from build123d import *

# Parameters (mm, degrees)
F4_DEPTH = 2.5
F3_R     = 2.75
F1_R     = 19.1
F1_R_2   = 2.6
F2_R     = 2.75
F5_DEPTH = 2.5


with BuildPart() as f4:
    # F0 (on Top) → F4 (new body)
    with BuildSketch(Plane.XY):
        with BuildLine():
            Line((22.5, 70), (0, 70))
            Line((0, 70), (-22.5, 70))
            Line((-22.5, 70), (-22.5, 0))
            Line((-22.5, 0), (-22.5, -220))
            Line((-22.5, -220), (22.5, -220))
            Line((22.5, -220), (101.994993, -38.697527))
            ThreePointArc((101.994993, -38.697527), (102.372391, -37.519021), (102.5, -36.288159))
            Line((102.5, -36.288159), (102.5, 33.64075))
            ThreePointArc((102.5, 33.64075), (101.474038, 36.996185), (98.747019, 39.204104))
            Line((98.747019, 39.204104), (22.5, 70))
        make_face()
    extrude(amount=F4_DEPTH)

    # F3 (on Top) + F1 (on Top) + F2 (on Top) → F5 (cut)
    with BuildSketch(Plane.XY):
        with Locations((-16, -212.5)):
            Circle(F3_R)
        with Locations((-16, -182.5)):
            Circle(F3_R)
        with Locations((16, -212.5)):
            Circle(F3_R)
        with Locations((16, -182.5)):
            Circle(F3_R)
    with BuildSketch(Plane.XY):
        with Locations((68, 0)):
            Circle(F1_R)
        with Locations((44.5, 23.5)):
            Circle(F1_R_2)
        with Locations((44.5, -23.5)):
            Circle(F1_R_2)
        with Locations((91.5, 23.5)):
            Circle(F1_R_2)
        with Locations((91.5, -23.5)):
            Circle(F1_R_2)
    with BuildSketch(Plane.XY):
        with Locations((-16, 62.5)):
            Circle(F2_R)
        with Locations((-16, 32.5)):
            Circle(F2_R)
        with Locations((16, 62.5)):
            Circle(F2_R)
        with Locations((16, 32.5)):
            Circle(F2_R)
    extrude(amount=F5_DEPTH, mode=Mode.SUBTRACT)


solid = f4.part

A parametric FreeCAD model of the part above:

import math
import FreeCAD as App
import Part
import Sketcher

V = App.Vector
Q = App.Units.Quantity

doc = App.newDocument("Part")
params = doc.addObject("Spreadsheet::Sheet", "Params")
for row, (alias, value) in enumerate([
    ("sketch1_radius", "6.000001 mm"),
    ("sketch1_width", "45 mm"),
    ("sketch1_height", "290 mm"),
    ("pad1_length", "2.5 mm"),
    ("sketch2_diameter", "5.5 mm"),
    ("sketch2_diameter2", "38.2 mm"),
    ("sketch2_diameter3", "5.2 mm"),
    ("pocket1_length", "2.5 mm"),
], start=1):
    params.set(f"A{row}", alias)
    params.set(f"B{row}", "=" + value)
    params.setAlias(f"B{row}", alias)

body = doc.addObject("PartDesign::Body", "Body")

sketch1 = body.newObject("Sketcher::SketchObject", "Sketch")
sketch1.AttachmentSupport = (doc.getObject("XY_Plane"), [""])
sketch1.MapMode = "FlatFace"
sketch1.addGeometry([
    Part.LineSegment(V(22.5, 70, 0), V(-22.5, 70, 0)),
    Part.LineSegment(V(-22.5, 70, 0), V(-22.5, -220, 0)),
    Part.LineSegment(V(-22.5, -220, 0), V(22.5, -220, 0)),
    Part.LineSegment(V(22.5, -220, 0), V(102, -38.7, 0)),
    Part.ArcOfCircle(Part.Circle(V(96.5, -36.3, 0), V(0, 0, 1), 6), math.radians(-24), math.radians(0)),
    Part.LineSegment(V(102.5, -36.3, 0), V(102.5, 33.6, 0)),
    Part.ArcOfCircle(Part.Circle(V(96.5, 33.6, 0), V(0, 0, 1), 6), math.radians(0), math.radians(68)),
    Part.LineSegment(V(98.7, 39.2, 0), V(22.5, 70, 0)),
], False)
sketch1.addConstraint([
    Sketcher.Constraint("Coincident", 0, 2, 1, 1),
    Sketcher.Constraint("Coincident", 1, 2, 2, 1),
    Sketcher.Constraint("Coincident", 2, 2, 3, 1),
    Sketcher.Constraint("Tangent", 3, 2, 4, 1),
    Sketcher.Constraint("Tangent", 4, 2, 5, 1),
    Sketcher.Constraint("Tangent", 5, 2, 6, 1),
    Sketcher.Constraint("Tangent", 6, 2, 7, 1),
    Sketcher.Constraint("Coincident", 7, 2, 0, 1),
    Sketcher.Constraint("Horizontal", 0),
    Sketcher.Constraint("Vertical", 1),
    Sketcher.Constraint("Horizontal", 2),
    Sketcher.Constraint("Vertical", 5),
    Sketcher.Constraint("Vertical", 2, 2, 7, 2),
    Sketcher.Constraint("Radius", 6, Q("6.000001 mm")),
    Sketcher.Constraint("DistanceX", 0, 2, 0, 1, Q("45 mm")),
    Sketcher.Constraint("DistanceY", 1, 2, 1, 1, Q("290 mm")),
    Sketcher.Constraint("DistanceY", -1, 1, 0, 2, Q("70 mm")),
    Sketcher.Constraint("DistanceX", 0, 2, 6, 3, Q("118.999999 mm")),
    Sketcher.Constraint("DistanceX", -1, 1, 6, 3, Q("96.499999 mm")),
    Sketcher.Constraint("Radius", 4, Q("6.000015 mm")),
    Sketcher.Constraint("DistanceY", 5, 1, 5, 2, Q("69.928909 mm")),
    Sketcher.Constraint("Distance", 7, Q("82.231351 mm")),
])
sketch1.setExpression("Constraints[13]", "Params.sketch1_radius")
sketch1.setExpression("Constraints[14]", "Params.sketch1_width")
sketch1.setExpression("Constraints[15]", "Params.sketch1_height")
pad1 = body.newObject("PartDesign::Pad", "Pad")
pad1.Profile = sketch1
pad1.setExpression("Length", "Params.pad1_length")

sketch2 = body.newObject("Sketcher::SketchObject", "Sketch001")
sketch2.AttachmentSupport = (doc.getObject("XY_Plane"), [""])
sketch2.MapMode = "FlatFace"
sketch2.addGeometry([
    Part.Circle(V(-16, -212.5, 0), V(0, 0, 1), 2.8),
    Part.Circle(V(-16, -182.5, 0), V(0, 0, 1), 2.8),
    Part.Circle(V(16, -212.5, 0), V(0, 0, 1), 2.8),
    Part.Circle(V(16, -182.5, 0), V(0, 0, 1), 2.8),
    Part.Circle(V(68, 0, 0), V(0, 0, 1), 19.1),
    Part.Circle(V(44.5, 23.5, 0), V(0, 0, 1), 2.6),
    Part.Circle(V(44.5, -23.5, 0), V(0, 0, 1), 2.6),
    Part.Circle(V(91.5, 23.5, 0), V(0, 0, 1), 2.6),
    Part.Circle(V(91.5, -23.5, 0), V(0, 0, 1), 2.6),
    Part.Circle(V(-16, 62.5, 0), V(0, 0, 1), 2.8),
    Part.Circle(V(-16, 32.5, 0), V(0, 0, 1), 2.8),
    Part.Circle(V(16, 62.5, 0), V(0, 0, 1), 2.8),
    Part.Circle(V(16, 32.5, 0), V(0, 0, 1), 2.8),
], False)
sketch2.addConstraint([
    Sketcher.Constraint("Equal", 0, 1),
    Sketcher.Constraint("Equal", 1, 2),
    Sketcher.Constraint("Equal", 2, 3),
    Sketcher.Constraint("Equal", 5, 6),
    Sketcher.Constraint("Equal", 6, 7),
    Sketcher.Constraint("Equal", 7, 8),
    Sketcher.Constraint("Equal", 3, 9),
    Sketcher.Constraint("Equal", 9, 10),
    Sketcher.Constraint("Equal", 10, 11),
    Sketcher.Constraint("Equal", 11, 12),
    Sketcher.Constraint("Symmetric", 0, 3, 2, 3, -2),
    Sketcher.Constraint("Symmetric", 1, 3, 3, 3, -2),
    Sketcher.Constraint("Symmetric", 9, 3, 11, 3, -2),
    Sketcher.Constraint("Symmetric", 10, 3, 12, 3, -2),
    Sketcher.Constraint("Symmetric", 5, 3, 6, 3, -1),
    Sketcher.Constraint("Symmetric", 7, 3, 8, 3, -1),
    Sketcher.Constraint("PointOnObject", 4, 3, -1),
    Sketcher.Constraint("Horizontal", 5, 3, 7, 3),
    Sketcher.Constraint("Vertical", 0, 3, 1, 3),
    Sketcher.Constraint("Vertical", 1, 3, 9, 3),
    Sketcher.Constraint("Vertical", 9, 3, 10, 3),
    Sketcher.Constraint("Diameter", 0, Q("5.5 mm")),
    Sketcher.Constraint("Diameter", 4, Q("38.2 mm")),
    Sketcher.Constraint("Diameter", 5, Q("5.2 mm")),
    Sketcher.Constraint("DistanceX", 0, 3, -1, 1, Q("16 mm")),
    Sketcher.Constraint("DistanceX", -1, 1, 4, 3, Q("68 mm")),
    Sketcher.Constraint("DistanceY", 0, 3, 1, 3, Q("30 mm")),
    Sketcher.Constraint("DistanceY", 3, 3, 5, 3, Q("206 mm")),
    Sketcher.Constraint("DistanceY", 6, 3, 5, 3, Q("47 mm")),
    Sketcher.Constraint("DistanceX", 5, 3, 7, 3, Q("47 mm")),
    Sketcher.Constraint("DistanceY", 5, 3, 9, 3, Q("39 mm")),
    Sketcher.Constraint("DistanceY", 10, 3, 9, 3, Q("30 mm")),
    Sketcher.Constraint("DistanceX", -1, 1, 5, 3, Q("44.5 mm")),
])
sketch2.setExpression("Constraints[21]", "Params.sketch2_diameter")
sketch2.setExpression("Constraints[22]", "Params.sketch2_diameter2")
sketch2.setExpression("Constraints[23]", "Params.sketch2_diameter3")
pocket1 = body.newObject("PartDesign::Pocket", "Pocket")
pocket1.Profile = sketch2
pocket1.setExpression("Length", "Params.pocket1_length")
pocket1.Reversed = True

doc.recompute()
